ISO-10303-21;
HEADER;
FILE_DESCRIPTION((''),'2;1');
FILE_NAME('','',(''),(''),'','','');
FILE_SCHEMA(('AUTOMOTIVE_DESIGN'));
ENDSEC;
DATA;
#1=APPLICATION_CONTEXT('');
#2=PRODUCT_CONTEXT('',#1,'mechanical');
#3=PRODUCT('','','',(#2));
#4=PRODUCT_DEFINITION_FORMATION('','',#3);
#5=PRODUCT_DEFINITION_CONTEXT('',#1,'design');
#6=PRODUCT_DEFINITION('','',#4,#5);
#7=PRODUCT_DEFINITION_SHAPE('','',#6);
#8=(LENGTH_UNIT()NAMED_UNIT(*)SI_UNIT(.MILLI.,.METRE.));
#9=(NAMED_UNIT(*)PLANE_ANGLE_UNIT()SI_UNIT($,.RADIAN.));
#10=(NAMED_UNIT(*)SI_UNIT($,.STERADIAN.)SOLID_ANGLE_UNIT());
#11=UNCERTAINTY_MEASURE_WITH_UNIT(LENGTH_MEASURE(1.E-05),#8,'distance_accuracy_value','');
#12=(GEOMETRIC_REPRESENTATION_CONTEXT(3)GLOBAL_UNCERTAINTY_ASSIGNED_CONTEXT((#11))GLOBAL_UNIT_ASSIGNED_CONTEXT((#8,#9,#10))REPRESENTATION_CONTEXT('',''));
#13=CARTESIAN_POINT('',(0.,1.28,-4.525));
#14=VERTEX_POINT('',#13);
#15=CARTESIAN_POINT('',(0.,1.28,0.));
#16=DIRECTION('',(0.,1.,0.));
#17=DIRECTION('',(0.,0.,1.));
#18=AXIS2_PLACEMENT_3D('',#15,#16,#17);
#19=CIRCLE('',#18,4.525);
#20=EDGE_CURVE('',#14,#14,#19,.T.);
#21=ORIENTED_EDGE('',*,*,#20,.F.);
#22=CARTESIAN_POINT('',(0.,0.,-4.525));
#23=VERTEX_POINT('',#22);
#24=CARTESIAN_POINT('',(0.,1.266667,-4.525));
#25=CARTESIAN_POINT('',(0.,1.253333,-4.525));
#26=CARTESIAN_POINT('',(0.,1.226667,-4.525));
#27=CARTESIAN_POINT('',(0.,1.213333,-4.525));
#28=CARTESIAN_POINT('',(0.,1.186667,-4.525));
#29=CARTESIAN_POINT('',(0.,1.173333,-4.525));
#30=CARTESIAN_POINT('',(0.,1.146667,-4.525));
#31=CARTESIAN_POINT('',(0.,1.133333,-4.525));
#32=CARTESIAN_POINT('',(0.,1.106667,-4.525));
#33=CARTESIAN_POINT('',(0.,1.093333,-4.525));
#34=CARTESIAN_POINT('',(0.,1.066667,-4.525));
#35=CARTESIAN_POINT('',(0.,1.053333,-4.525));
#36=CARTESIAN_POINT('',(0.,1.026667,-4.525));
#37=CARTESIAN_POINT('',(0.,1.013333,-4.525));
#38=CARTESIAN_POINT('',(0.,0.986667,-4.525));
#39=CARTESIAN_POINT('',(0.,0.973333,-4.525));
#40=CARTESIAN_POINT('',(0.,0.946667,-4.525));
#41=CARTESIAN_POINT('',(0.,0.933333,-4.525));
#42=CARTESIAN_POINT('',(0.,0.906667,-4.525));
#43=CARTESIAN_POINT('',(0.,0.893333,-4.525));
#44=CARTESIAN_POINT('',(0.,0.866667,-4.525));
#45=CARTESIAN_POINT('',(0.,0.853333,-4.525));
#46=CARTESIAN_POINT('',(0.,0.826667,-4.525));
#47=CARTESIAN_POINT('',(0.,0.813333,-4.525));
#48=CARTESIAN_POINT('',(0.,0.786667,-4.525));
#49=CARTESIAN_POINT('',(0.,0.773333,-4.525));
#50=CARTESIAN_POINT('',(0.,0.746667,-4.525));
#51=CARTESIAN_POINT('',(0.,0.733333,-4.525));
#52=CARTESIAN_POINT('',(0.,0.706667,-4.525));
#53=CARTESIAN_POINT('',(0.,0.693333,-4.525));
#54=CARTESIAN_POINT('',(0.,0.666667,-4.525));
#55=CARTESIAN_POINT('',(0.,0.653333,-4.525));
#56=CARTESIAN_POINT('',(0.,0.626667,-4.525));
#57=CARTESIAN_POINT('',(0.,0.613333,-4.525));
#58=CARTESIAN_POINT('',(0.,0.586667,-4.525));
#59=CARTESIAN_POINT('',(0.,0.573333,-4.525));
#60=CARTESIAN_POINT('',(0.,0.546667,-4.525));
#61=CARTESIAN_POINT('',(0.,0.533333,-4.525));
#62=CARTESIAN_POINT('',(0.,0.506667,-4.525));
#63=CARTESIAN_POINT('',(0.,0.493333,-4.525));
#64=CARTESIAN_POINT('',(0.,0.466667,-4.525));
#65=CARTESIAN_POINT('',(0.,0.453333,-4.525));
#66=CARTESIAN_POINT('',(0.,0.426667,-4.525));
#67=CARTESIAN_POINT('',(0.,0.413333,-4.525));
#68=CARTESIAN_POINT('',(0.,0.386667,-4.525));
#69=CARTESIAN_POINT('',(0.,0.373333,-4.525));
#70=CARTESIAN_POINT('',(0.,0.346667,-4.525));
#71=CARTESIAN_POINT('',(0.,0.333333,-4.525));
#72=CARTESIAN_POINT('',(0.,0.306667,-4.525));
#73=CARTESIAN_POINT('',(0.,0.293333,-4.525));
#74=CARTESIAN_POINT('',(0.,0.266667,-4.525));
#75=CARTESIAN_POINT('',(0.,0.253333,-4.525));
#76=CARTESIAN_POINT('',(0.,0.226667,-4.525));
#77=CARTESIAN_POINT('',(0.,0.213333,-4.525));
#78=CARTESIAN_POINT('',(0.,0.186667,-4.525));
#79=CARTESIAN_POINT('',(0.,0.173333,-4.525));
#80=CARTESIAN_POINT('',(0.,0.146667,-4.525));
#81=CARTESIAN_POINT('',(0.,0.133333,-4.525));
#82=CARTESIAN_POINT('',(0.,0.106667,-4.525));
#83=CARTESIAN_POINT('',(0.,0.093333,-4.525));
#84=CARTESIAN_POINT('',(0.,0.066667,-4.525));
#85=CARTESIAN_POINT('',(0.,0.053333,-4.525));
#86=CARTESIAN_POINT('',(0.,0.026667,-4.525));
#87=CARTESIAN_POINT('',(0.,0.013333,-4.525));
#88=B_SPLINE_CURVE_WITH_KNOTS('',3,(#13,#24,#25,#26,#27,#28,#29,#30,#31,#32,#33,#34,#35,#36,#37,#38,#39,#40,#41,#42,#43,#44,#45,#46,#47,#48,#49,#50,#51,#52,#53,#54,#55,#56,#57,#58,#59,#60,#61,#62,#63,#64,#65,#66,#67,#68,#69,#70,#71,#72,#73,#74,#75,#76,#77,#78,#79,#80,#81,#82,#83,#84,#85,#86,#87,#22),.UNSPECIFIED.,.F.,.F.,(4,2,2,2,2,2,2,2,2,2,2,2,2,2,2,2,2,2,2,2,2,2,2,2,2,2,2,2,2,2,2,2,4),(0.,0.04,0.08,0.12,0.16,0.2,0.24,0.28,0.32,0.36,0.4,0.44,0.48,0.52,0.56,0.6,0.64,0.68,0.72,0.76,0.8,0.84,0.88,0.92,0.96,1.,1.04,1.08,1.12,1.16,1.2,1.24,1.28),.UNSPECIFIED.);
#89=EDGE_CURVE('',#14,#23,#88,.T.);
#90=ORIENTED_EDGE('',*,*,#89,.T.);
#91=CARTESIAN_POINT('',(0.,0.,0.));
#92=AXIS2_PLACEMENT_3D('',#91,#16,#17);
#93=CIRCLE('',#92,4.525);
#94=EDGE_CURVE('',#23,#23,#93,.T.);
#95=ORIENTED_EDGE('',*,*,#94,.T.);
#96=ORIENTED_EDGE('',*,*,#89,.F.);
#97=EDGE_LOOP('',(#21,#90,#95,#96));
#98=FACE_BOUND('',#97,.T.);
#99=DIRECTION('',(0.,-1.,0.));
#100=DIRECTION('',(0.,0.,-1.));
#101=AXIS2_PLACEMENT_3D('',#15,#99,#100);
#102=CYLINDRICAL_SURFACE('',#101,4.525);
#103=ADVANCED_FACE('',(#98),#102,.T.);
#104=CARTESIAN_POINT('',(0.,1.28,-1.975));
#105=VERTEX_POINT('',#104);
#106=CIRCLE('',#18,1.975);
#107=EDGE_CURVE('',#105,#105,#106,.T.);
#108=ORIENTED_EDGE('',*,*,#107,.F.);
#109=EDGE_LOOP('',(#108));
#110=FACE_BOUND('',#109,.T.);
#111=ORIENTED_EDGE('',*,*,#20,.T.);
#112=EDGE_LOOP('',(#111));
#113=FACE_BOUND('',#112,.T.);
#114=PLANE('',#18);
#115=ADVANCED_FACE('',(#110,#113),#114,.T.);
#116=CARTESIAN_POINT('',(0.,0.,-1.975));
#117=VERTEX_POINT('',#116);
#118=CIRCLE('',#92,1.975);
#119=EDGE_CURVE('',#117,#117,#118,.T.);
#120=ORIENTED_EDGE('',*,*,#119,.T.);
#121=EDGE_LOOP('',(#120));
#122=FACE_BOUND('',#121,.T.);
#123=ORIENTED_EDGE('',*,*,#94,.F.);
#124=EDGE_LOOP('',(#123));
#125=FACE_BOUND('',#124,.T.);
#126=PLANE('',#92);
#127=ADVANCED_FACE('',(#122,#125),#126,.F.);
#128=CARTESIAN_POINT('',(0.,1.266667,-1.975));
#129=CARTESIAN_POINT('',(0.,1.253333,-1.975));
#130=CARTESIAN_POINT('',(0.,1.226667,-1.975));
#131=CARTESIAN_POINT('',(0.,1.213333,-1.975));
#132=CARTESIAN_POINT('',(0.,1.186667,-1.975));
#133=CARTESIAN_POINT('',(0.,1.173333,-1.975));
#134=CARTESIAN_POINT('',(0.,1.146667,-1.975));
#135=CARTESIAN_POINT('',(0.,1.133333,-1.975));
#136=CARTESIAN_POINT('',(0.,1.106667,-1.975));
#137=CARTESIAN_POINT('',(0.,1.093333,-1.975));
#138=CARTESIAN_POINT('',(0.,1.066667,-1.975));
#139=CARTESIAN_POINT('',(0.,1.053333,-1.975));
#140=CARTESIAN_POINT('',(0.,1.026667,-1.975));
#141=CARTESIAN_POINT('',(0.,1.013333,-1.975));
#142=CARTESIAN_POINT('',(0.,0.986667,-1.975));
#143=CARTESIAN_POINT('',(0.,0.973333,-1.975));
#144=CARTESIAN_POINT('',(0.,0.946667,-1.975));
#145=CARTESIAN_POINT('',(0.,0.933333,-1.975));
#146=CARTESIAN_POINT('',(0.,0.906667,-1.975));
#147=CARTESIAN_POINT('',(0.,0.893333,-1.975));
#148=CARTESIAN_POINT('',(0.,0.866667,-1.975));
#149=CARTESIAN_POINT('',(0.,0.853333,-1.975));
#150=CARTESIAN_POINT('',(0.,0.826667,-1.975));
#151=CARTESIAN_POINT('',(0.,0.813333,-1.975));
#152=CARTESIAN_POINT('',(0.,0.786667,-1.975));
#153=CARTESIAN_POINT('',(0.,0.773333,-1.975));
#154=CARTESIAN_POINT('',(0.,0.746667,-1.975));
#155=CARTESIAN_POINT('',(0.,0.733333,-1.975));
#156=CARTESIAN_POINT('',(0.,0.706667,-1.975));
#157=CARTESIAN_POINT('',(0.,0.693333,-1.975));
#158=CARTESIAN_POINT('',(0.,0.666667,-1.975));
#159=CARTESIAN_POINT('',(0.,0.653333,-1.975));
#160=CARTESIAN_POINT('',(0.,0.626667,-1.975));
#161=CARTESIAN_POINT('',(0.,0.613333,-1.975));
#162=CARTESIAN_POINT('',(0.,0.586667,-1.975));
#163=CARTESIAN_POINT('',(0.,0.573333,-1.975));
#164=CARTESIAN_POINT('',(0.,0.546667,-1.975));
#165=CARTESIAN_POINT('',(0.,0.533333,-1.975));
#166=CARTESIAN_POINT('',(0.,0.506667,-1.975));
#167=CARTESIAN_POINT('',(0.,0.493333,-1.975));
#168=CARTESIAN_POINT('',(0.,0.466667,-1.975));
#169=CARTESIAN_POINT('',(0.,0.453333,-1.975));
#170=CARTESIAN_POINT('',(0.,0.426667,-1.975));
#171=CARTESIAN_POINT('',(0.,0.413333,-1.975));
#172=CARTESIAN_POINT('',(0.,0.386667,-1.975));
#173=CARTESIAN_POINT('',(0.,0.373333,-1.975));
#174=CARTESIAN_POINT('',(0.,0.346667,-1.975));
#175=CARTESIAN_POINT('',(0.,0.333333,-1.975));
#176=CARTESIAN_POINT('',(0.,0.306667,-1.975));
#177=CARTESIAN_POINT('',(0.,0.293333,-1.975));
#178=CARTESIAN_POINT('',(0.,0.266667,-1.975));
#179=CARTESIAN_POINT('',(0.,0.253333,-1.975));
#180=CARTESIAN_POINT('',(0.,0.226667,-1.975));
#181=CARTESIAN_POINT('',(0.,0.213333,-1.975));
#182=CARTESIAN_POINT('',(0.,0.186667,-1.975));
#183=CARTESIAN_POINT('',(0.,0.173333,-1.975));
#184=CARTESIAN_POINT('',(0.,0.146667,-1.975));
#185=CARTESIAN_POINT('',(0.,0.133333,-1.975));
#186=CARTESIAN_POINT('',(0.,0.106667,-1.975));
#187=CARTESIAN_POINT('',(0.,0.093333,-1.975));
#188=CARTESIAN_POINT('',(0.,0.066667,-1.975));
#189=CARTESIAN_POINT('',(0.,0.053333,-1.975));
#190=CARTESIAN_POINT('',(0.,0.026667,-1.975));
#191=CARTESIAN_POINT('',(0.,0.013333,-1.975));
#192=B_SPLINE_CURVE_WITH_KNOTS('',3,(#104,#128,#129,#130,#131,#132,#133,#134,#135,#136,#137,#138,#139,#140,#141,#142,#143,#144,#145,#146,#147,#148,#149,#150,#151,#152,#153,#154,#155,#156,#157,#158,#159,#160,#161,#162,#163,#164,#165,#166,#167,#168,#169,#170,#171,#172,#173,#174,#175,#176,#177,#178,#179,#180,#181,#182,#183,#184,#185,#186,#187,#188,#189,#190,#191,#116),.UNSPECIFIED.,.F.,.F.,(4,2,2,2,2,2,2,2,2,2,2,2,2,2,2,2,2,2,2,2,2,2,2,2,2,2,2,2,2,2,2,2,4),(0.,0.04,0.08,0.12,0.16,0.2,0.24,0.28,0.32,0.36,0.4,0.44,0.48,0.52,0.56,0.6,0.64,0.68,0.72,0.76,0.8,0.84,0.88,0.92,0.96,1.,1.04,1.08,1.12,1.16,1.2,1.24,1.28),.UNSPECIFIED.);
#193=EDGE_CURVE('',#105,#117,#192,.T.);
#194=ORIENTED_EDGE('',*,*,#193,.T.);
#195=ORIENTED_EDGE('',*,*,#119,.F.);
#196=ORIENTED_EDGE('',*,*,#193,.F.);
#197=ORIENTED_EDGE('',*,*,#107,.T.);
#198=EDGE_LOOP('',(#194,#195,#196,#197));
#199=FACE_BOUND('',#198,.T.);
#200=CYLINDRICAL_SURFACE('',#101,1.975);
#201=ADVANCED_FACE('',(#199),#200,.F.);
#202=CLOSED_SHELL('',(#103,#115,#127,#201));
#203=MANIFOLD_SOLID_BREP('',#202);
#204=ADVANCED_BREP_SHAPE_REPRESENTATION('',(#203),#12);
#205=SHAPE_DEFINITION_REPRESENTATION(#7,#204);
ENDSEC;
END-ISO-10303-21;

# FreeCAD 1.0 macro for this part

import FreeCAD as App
import Part
import Sketcher

V = App.Vector
Q = App.Units.Quantity

doc = App.newDocument("Part")
body = doc.addObject("PartDesign::Body", "Body")

sketch1 = doc.addObject("Sketcher::SketchObject", "Sketch")
body.addObject(sketch1)
sketch1.AttachmentSupport = (doc.XZ_Plane, [""])
sketch1.MapMode = "FlatFace"
sketch1.addGeometry([
    Part.Circle(V(0, 0, 0), V(0, 0, 1), 4.5),
    Part.Circle(V(0, 0, 0), V(0, 0, 1), 2),
], False)
sketch1.addConstraint([
    Sketcher.Constraint("Coincident", 0, 3, -1, 1),
    Sketcher.Constraint("Coincident", 1, 3, -1, 1),
    Sketcher.Constraint("Diameter", 0, Q("9.05 mm")),
    Sketcher.Constraint("Diameter", 1, Q("3.95 mm")),
])
pad1 = doc.addObject("PartDesign::Pad", "Pad")
body.addObject(pad1)
pad1.Profile = sketch1
pad1.Length = 1.28
pad1.Reversed = True

doc.recompute()
